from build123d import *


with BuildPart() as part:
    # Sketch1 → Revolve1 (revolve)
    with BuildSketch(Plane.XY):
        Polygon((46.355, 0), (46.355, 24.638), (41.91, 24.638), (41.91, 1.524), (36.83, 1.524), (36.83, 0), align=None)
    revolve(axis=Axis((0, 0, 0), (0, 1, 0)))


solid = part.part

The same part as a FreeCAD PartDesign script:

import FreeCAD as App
import Part
import Sketcher
from FreeCAD import Vector
Q = App.Units.Quantity


def add_polygon(sketch, points):
    """Adds a closed chain of lines whose ends are joined by coincident constraints."""
    first, n = sketch.GeometryCount, len(points)
    for a, b in zip(points, points[1:] + points[:1]):
        sketch.addGeometry(Part.LineSegment(App.Vector(*a, 0), App.Vector(*b, 0)), False)
    for i in range(n):
        sketch.addConstraint(Sketcher.Constraint("Coincident", first + i, 2, first + (i + 1) % n, 1))

doc = App.newDocument("Part")
params = doc.addObject("Spreadsheet::Sheet", "Params")
for row, (alias, value) in enumerate([
    ("sketch1_width", "0.2 in"),
    ("sketch1_height", "0.97 in"),
    ("sketch1_height2", "0.91 in"),
    ("sketch1_width2", "0.175 in"),
    ("revolution_angle", "360 deg"),
], start=1):
    params.set(f"A{row}", alias)
    params.set(f"B{row}", "=" + value)
    params.setAlias(f"B{row}", alias)

body = doc.addObject("PartDesign::Body", "Body")

sketch1 = body.newObject("Sketcher::SketchObject", "Sketch")
sketch1.AttachmentSupport = (doc.getObject("XY_Plane"), [""])
sketch1.MapMode = "FlatFace"
add_polygon(sketch1, [(46.355, 0), (46.355, 24.638), (41.91, 24.638), (41.91, 1.524), (36.83, 1.524), (36.83, 0)])
sketch1.addConstraint(Sketcher.Constraint("Vertical", 0))
sketch1.addConstraint(Sketcher.Constraint("Horizontal", 1))
sketch1.addConstraint(Sketcher.Constraint("Vertical", 2))
sketch1.addConstraint(Sketcher.Constraint("Horizontal", 3))
sketch1.addConstraint(Sketcher.Constraint("Vertical", 4))
sketch1.addConstraint(Sketcher.Constraint("Horizontal", 5))
sketch1.addConstraint(Sketcher.Constraint("PointOnObject", 4, 2, -1))
sketch1.addConstraint(Sketcher.Constraint("DistanceX", 3, 2, 3, 1, Q("0.2 in")))
sketch1.addConstraint(Sketcher.Constraint("DistanceY", 0, 1, 0, 2, Q("0.97 in")))
sketch1.addConstraint(Sketcher.Constraint("DistanceY", 2, 2, 2, 1, Q("0.91 in")))
sketch1.addConstraint(Sketcher.Constraint("DistanceX", 1, 2, 1, 1, Q("0.175 in")))
sketch1.addConstraint(Sketcher.Constraint("DistanceX", -1, 1, 1, 2, Q("1.65 in")))
sketch1.setExpression("Constraints[13]", "Params.sketch1_width")
sketch1.setExpression("Constraints[14]", "Params.sketch1_height")
sketch1.setExpression("Constraints[15]", "Params.sketch1_height2")
sketch1.setExpression("Constraints[16]", "Params.sketch1_width2")
revolution = body.newObject("PartDesign::Revolution", "Revolution")
revolution.Profile = sketch1
revolution.ReferenceAxis = (sketch1, ["V_Axis"])
revolution.setExpression("Angle", "Params.revolution_angle")

doc.recompute()
